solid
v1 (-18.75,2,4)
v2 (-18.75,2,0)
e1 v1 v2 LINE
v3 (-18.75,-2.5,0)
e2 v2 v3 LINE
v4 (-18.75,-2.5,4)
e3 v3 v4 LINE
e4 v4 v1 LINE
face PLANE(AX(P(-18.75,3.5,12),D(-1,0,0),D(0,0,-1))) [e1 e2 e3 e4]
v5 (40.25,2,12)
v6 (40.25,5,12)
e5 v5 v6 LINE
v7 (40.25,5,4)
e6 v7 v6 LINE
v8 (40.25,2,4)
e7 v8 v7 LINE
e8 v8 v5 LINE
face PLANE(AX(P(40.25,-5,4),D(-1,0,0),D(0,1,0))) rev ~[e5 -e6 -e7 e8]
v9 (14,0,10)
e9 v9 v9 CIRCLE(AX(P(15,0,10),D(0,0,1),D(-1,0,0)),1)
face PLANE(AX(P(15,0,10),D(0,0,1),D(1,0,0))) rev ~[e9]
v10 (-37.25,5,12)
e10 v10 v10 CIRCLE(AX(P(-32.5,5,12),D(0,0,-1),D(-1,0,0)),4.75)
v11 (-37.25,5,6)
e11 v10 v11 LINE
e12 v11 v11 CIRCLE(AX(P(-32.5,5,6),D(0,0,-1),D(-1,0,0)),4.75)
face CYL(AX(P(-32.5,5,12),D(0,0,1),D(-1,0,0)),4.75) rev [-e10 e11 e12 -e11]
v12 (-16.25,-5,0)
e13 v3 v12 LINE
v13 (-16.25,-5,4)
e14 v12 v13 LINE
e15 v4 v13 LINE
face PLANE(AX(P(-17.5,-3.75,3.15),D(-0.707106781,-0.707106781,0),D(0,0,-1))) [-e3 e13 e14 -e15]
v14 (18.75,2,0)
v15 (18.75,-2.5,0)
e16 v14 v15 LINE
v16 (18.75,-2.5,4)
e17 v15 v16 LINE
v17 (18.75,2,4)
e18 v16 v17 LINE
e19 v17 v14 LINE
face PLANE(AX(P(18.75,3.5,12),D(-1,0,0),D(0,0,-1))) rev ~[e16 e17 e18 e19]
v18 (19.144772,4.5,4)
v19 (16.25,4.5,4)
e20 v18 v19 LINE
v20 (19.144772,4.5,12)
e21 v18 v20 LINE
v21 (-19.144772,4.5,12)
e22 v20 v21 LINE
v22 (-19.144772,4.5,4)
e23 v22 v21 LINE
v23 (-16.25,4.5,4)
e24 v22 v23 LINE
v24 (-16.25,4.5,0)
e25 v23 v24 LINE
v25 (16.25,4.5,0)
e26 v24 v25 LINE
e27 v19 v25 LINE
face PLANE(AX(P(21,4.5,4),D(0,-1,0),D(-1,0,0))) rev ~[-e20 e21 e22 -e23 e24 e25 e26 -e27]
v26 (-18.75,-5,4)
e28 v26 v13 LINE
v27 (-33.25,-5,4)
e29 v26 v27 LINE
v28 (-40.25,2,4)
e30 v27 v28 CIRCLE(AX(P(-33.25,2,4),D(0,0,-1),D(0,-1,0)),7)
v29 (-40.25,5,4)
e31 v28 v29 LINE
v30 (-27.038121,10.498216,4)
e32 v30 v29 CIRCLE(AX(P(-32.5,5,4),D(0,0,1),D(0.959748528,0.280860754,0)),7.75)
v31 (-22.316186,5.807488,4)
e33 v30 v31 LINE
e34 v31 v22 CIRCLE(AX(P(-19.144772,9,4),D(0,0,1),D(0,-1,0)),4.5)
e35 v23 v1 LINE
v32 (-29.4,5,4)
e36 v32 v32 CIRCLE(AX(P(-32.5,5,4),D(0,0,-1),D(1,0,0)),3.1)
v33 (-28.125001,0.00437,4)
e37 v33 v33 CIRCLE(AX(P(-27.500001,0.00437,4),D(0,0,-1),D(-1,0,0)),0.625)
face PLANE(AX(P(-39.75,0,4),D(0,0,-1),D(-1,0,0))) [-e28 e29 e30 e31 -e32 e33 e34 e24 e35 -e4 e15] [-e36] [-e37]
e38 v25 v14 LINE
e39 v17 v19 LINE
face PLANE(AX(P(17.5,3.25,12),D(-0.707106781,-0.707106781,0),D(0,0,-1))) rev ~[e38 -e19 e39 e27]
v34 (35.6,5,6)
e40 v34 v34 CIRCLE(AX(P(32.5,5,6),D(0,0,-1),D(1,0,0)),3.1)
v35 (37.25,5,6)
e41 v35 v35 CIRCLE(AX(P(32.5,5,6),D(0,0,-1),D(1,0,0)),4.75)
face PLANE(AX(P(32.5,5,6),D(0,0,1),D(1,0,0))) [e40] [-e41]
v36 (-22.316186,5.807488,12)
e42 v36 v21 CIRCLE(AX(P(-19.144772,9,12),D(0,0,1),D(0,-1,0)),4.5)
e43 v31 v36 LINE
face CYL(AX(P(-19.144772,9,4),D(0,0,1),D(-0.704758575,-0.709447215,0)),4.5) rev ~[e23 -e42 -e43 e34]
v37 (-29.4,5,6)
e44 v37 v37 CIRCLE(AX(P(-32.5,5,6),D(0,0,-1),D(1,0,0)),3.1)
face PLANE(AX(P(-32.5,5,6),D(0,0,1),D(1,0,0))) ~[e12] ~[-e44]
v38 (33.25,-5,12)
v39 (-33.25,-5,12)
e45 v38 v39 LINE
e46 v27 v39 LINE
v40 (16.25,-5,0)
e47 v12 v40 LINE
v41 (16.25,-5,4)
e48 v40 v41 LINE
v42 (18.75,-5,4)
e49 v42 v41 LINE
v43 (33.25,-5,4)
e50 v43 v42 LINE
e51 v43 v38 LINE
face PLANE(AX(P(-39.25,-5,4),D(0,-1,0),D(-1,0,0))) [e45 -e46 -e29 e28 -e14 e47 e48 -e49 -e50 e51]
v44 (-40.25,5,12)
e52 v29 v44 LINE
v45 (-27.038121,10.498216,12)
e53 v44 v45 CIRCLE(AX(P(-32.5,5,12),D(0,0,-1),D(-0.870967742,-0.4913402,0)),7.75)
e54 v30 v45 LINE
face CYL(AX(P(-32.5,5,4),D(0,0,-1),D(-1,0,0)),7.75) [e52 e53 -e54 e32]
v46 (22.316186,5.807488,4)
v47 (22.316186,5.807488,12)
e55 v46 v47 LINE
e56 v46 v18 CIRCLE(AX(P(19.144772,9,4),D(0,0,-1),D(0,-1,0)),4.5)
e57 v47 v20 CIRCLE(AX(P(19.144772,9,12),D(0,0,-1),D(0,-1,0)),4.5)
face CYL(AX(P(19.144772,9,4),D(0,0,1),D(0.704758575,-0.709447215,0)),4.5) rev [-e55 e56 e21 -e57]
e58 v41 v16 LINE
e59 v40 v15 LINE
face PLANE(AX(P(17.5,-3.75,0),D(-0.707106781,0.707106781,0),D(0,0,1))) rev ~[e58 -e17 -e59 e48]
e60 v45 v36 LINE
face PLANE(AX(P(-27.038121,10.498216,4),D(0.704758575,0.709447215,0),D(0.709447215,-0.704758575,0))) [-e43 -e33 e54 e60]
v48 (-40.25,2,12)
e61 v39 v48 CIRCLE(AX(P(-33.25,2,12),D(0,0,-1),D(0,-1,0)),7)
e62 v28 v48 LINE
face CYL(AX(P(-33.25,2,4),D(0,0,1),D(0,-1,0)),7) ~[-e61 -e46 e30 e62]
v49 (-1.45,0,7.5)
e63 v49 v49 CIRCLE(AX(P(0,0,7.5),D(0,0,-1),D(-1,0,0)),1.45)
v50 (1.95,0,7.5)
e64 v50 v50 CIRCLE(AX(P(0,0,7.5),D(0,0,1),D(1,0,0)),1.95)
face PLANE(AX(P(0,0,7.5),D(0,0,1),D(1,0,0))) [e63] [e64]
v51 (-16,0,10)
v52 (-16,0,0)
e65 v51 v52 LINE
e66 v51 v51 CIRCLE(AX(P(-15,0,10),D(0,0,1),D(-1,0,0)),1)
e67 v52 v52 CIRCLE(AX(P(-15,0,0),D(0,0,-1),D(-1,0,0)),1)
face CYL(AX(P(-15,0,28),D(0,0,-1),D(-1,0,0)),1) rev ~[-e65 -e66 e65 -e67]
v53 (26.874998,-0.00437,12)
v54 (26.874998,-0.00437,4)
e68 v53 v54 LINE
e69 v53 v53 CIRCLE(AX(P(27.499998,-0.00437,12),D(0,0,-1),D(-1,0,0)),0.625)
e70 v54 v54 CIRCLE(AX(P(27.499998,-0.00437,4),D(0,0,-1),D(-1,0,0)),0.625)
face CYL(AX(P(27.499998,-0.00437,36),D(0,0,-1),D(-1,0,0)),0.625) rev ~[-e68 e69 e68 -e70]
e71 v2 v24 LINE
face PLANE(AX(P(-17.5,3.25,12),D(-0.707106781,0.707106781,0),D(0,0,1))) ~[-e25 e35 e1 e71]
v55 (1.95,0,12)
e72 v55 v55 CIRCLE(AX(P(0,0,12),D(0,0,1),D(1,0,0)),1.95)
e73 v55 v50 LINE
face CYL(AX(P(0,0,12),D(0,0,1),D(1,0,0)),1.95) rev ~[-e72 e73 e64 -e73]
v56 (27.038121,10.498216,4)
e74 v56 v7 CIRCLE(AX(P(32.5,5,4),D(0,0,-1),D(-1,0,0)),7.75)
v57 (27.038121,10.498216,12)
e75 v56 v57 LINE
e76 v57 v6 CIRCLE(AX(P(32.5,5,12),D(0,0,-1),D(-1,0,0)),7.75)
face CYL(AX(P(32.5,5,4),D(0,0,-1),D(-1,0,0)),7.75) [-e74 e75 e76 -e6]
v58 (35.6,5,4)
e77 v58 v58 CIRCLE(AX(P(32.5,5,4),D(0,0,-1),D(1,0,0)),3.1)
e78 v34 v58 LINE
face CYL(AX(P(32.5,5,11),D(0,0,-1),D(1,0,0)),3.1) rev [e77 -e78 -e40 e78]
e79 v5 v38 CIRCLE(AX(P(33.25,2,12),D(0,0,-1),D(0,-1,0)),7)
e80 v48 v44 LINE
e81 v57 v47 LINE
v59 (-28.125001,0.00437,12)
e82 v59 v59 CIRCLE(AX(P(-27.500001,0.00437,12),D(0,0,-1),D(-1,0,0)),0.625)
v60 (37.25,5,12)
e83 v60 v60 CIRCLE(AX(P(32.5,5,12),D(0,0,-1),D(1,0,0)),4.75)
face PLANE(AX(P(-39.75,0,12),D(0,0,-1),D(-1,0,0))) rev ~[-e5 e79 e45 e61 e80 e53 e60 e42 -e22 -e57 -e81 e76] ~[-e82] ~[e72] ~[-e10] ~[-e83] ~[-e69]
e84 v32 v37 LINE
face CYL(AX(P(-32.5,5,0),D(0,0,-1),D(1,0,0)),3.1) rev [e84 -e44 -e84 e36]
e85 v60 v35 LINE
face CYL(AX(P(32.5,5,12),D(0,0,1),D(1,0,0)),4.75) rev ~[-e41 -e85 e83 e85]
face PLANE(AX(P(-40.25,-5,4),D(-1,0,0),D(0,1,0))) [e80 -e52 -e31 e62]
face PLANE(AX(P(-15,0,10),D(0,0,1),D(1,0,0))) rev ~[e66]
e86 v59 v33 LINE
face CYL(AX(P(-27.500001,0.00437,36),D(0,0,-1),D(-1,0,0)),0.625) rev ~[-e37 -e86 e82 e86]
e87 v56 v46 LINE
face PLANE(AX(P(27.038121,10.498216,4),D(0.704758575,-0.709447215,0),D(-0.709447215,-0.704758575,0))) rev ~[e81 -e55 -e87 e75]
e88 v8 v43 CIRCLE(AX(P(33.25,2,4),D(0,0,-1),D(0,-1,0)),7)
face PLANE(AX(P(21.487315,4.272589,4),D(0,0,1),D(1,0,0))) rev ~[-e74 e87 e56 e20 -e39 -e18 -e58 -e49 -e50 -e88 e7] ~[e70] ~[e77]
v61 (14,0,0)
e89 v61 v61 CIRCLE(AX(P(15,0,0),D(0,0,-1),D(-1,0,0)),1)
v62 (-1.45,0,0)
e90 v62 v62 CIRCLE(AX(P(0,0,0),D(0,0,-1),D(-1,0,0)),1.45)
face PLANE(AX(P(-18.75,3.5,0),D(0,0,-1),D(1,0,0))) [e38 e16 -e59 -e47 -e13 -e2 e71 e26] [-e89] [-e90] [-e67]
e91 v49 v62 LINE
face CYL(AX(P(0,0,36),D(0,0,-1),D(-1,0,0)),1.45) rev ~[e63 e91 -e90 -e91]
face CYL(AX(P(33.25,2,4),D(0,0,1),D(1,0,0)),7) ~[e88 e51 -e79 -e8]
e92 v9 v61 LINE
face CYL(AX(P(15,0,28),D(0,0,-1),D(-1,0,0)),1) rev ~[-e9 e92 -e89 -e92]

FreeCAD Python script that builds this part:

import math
import FreeCAD as App
import Part
import Sketcher
Q = App.Units.Quantity


def edges_at(feature, points):
    """Names of the edges that pass closest to the given points."""
    edges = feature.Shape.Edges
    near = lambda p: min(range(len(edges)), key=lambda i: edges[i].distToShape(Part.Vertex(*p))[0])
    return sorted({f"Edge{near(p) + 1}" for p in points})


def add_polygon(sketch, points):
    """Adds a closed chain of lines whose ends are joined by coincident constraints."""
    first, n = sketch.GeometryCount, len(points)
    for a, b in zip(points, points[1:] + points[:1]):
        sketch.addGeometry(Part.LineSegment(App.Vector(*a, 0), App.Vector(*b, 0)), False)
    for i in range(n):
        sketch.addConstraint(Sketcher.Constraint("Coincident", first + i, 2, first + (i + 1) % n, 1))

doc = App.newDocument("Part")
body = doc.addObject("PartDesign::Body", "Body")

# Sketch on XY plane
sketch1 = body.newObject("Sketcher::SketchObject", "Sketch")
sketch1.AttachmentSupport = (doc.getObject("XY_Plane"), [""])
sketch1.MapMode = "FlatFace"
add_polygon(sketch1, [(-39, 4), (-39, -4), (39, -4), (39, 4)])  # lines 0-3
sketch1.addConstraint([
    Sketcher.Constraint("Vertical", 0),
    Sketcher.Constraint("Horizontal", 1),
    Sketcher.Constraint("Vertical", 2),
    Sketcher.Constraint("Horizontal", 3),
    Sketcher.Constraint("Symmetric", 0, 2, 2, 2, -1, 1),
    Sketcher.Constraint("DistanceY", 0, 2, 0, 1, 7.0),
    Sketcher.Constraint("DistanceX", 1, 1, 1, 2, 78.5),
])
pad1 = body.newObject("PartDesign::Pad", "Pad")
pad1.Profile = sketch1
pad1.Type = "TwoLengths"
pad1.Length = 12
pad1.Length2 = 12

# Sketch on XZ plane
sketch2 = body.newObject("Sketcher::SketchObject", "Sketch001")
sketch2.AttachmentSupport = (doc.getObject("XZ_Plane"), [""])
sketch2.MapMode = "FlatFace"
sketch2.AttachmentOffset = App.Placement(App.Vector(0, 0, -3.5), App.Rotation())
add_polygon(sketch2, [(-39, -3), (-39, 3), (-19, 3), (-19, -3)])  # lines 0-3
add_polygon(sketch2, [(19, -3), (19, 3), (39, 3), (39, -3)])  # lines 4-7
sketch2.addConstraint([
    Sketcher.Constraint("Vertical", 0),
    Sketcher.Constraint("Horizontal", 1),
    Sketcher.Constraint("Vertical", 2),
    Sketcher.Constraint("Horizontal", 3),
    Sketcher.Constraint("Vertical", 4),
    Sketcher.Constraint("Horizontal", 5),
    Sketcher.Constraint("Vertical", 6),
    Sketcher.Constraint("Horizontal", 7),
    Sketcher.Constraint("Symmetric", 2, 2, 4, 2, -1, 1),
    Sketcher.Constraint("Symmetric", 0, 2, 6, 2, -1, 1),
    Sketcher.Constraint("Horizontal", 1, 2, 4, 2),
    Sketcher.Constraint("DistanceX", 1, 1, 1, 2, 20.5),
    Sketcher.Constraint("DistanceY", 0, 1, 0, 2, 6.3),
    Sketcher.Constraint("DistanceX", 0, 2, 4, 2, 58.0),
])
pocket1 = body.newObject("PartDesign::Pocket", "Pocket")
pocket1.Profile = sketch2
pocket1.Type = "ThroughAll"
pocket1.Reversed = True

# Sketch on XZ plane
sketch3 = body.newObject("Sketcher::SketchObject", "Sketch002")
sketch3.AttachmentSupport = (doc.getObject("XZ_Plane"), [""])
sketch3.MapMode = "FlatFace"
sketch3.AttachmentOffset = App.Placement(App.Vector(0, 0, -3.5), App.Rotation())
add_polygon(sketch3, [(-39, -12), (-39, -3), (-26, -3), (-26, -12)])  # lines 0-3
add_polygon(sketch3, [(-39, 3), (-39, 12), (-26, 12), (-26, 3)])  # lines 4-7
add_polygon(sketch3, [(26, 3), (26, 12), (39, 12), (39, 3)])  # lines 8-11
add_polygon(sketch3, [(26, -12), (26, -3), (39, -3), (39, -12)])  # lines 12-15
sketch3.addConstraint([
    Sketcher.Constraint("Vertical", 0),
    Sketcher.Constraint("Horizontal", 1),
    Sketcher.Constraint("Vertical", 2),
    Sketcher.Constraint("Horizontal", 3),
    Sketcher.Constraint("Vertical", 4),
    Sketcher.Constraint("Horizontal", 5),
    Sketcher.Constraint("Vertical", 6),
    Sketcher.Constraint("Horizontal", 7),
    Sketcher.Constraint("Vertical", 8),
    Sketcher.Constraint("Horizontal", 9),
    Sketcher.Constraint("Vertical", 10),
    Sketcher.Constraint("Horizontal", 11),
    Sketcher.Constraint("Vertical", 12),
    Sketcher.Constraint("Horizontal", 13),
    Sketcher.Constraint("Vertical", 14),
    Sketcher.Constraint("Horizontal", 15),
    Sketcher.Constraint("Symmetric", 2, 2, 8, 2, -1, 1),
    Sketcher.Constraint("Symmetric", 0, 2, 10, 2, -1, 1),
    Sketcher.Constraint("Symmetric", 6, 2, 12, 2, -1, 1),
    Sketcher.Constraint("Symmetric", 4, 2, 14, 2, -1, 1),
    Sketcher.Constraint("Symmetric", 5, 2, 8, 2, -2),
    Sketcher.Constraint("Symmetric", 7, 2, 10, 2, -2),
    Sketcher.Constraint("DistanceX", 1, 1, 1, 2, 13.5),
    Sketcher.Constraint("DistanceY", 2, 2, -1, 1, 12.0),
    Sketcher.Constraint("DistanceX", 4, 2, 8, 2, 65.0),
    Sketcher.Constraint("DistanceY", 0, 1, 0, 2, 8.85),
])
pad2 = body.newObject("PartDesign::Pad", "Pad001")
pad2.Profile = sketch3
pad2.Length = 8
pad2.Reversed = True

# Sketch on XY plane
sketch4 = body.newObject("Sketcher::SketchObject", "Sketch003")
sketch4.AttachmentSupport = (doc.getObject("XY_Plane"), [""])
sketch4.MapMode = "FlatFace"
sketch4.addGeometry([
    Part.Circle(App.Vector(-32.5, 5, 0), App.Vector(0, 0, 1), 3.1),
    Part.Circle(App.Vector(32.5, 5, 0), App.Vector(0, 0, 1), 3.1),
], False)
sketch4.addConstraint([
    Sketcher.Constraint("Equal", 0, 1),
    Sketcher.Constraint("Symmetric", 0, 3, 1, 3, -2),
    Sketcher.Constraint("Diameter", 0, 6.2),
    Sketcher.Constraint("DistanceY", -1, 1, 0, 3, 5.0),
    Sketcher.Constraint("DistanceX", 0, 3, 1, 3, 65.0),
])
pocket2 = body.newObject("PartDesign::Pocket", "Pocket001")
pocket2.Profile = sketch4
pocket2.Type = "ThroughAll"
pocket2.Midplane = True

# Sketch on XY plane
sketch5 = body.newObject("Sketcher::SketchObject", "Sketch004")
sketch5.AttachmentSupport = (doc.getObject("XY_Plane"), [""])
sketch5.MapMode = "FlatFace"
add_polygon(sketch5, [(15, 4), (36, -2), (36, 12), (15, 12)])  # lines 0-3
sketch5.addConstraint([
    Sketcher.Constraint("Vertical", 1),
    Sketcher.Constraint("Horizontal", 2),
    Sketcher.Constraint("Vertical", 3),
    Sketcher.Constraint("DistanceY", 3, 2, 3, 1, 8.0),
    Sketcher.Constraint("Angle", 0, Q("-15 deg")),
    Sketcher.Constraint("DistanceX", -1, 1, 2, 2, 15.0),
    Sketcher.Constraint("DistanceY", -1, 1, 1, 2, 11.5),
    Sketcher.Constraint("DistanceX", 2, 2, 2, 1, 21.256888),
])
pocket3 = body.newObject("PartDesign::Pocket", "Pocket002")
pocket3.Profile = sketch5
pocket3.Length = 5

# Sketch on XY plane
sketch6 = body.newObject("Sketcher::SketchObject", "Sketch005")
sketch6.AttachmentSupport = (doc.getObject("XY_Plane"), [""])
sketch6.MapMode = "FlatFace"
sketch6.AttachmentOffset = App.Placement(App.Vector(0, 0, 12), App.Rotation())
sketch6.addGeometry(Part.Circle(App.Vector(32, 5, 0), App.Vector(0, 0, 1), 6), False)
sketch6.addConstraint([
    Sketcher.Constraint("Diameter", 0, 12.4),
    Sketcher.Constraint("DistanceY", -1, 1, 0, 3, 5.0),
    Sketcher.Constraint("DistanceX", -1, 1, 0, 3, 32.5),
])
pocket4 = body.newObject("PartDesign::Pocket", "Pocket003")
pocket4.Profile = sketch6
pocket4.Length = 1
doc.recompute()

mirrored = body.newObject("PartDesign::Mirrored", "Mirrored")
mirrored.Originals = [pocket4]
mirrored.MirrorPlane = (doc.getObject("XY_Plane"), [""])
body.Tip = mirrored
doc.recompute()

mirrored2 = body.newObject("PartDesign::Mirrored", "Mirrored001")
mirrored2.Originals = [pocket4]
mirrored2.MirrorPlane = (doc.getObject("YZ_Plane"), [""])
body.Tip = mirrored2

# Sketch on XY plane
sketch7 = body.newObject("Sketcher::SketchObject", "Sketch006")
sketch7.AttachmentSupport = (doc.getObject("XY_Plane"), [""])
sketch7.MapMode = "FlatFace"
sketch7.AttachmentOffset = App.Placement(App.Vector(0, 0, -12), App.Rotation())
sketch7.addGeometry(Part.Circle(App.Vector(-32, 5, 0), App.Vector(0, 0, 1), 6), False)
sketch7.addConstraint([
    Sketcher.Constraint("Diameter", 0, 12.4),
    Sketcher.Constraint("DistanceY", -1, 1, 0, 3, 5.0),
    Sketcher.Constraint("DistanceX", 0, 3, -1, 1, 32.5),
])
pocket5 = body.newObject("PartDesign::Pocket", "Pocket004")
pocket5.Profile = sketch7
pocket5.Length = 1
pocket5.Reversed = True

# Sketch on XY plane
sketch8 = body.newObject("Sketcher::SketchObject", "Sketch007")
sketch8.AttachmentSupport = (doc.getObject("XY_Plane"), [""])
sketch8.MapMode = "FlatFace"
sketch8.AttachmentOffset = App.Placement(App.Vector(0, 0, 12), App.Rotation())
add_polygon(sketch8, [(-39, 12), (-39, 3), (-26, 3), (-26, 12)])  # lines 0-3
sketch8.addConstraint([
    Sketcher.Constraint("Vertical", 0),
    Sketcher.Constraint("Horizontal", 1),
    Sketcher.Constraint("Vertical", 2),
    Sketcher.Constraint("Horizontal", 3),
    Sketcher.Constraint("DistanceX", 1, 1, 1, 2, 13.5),
    Sketcher.Constraint("DistanceY", 0, 2, 0, 1, 8.5),
    Sketcher.Constraint("DistanceY", -1, 1, 0, 2, 3.0),
    Sketcher.Constraint("DistanceX", 0, 2, -1, 1, 39.25),
])
pocket6 = body.newObject("PartDesign::Pocket", "Pocket005")
pocket6.Profile = sketch8
pocket6.Length = 1
doc.recompute()

mirrored3 = body.newObject("PartDesign::Mirrored", "Mirrored002")
mirrored3.Originals = [pocket6]
mirrored3.MirrorPlane = (doc.getObject("YZ_Plane"), [""])
body.Tip = mirrored3
doc.recompute()

mirrored4 = body.newObject("PartDesign::Mirrored", "Mirrored003")
mirrored4.Originals = [pocket6]
mirrored4.MirrorPlane = (doc.getObject("XY_Plane"), [""])
body.Tip = mirrored4

# Sketch on XY plane
sketch9 = body.newObject("Sketcher::SketchObject", "Sketch008")
sketch9.AttachmentSupport = (doc.getObject("XY_Plane"), [""])
sketch9.MapMode = "FlatFace"
sketch9.AttachmentOffset = App.Placement(App.Vector(0, 0, -12), App.Rotation())
add_polygon(sketch9, [(39, 12), (39, 3), (26, 3), (26, 12)])  # lines 0-3
sketch9.addConstraint([
    Sketcher.Constraint("Vertical", 0),
    Sketcher.Constraint("Horizontal", 1),
    Sketcher.Constraint("Vertical", 2),
    Sketcher.Constraint("Horizontal", 3),
    Sketcher.Constraint("DistanceX", 1, 2, 1, 1, 13.5),
    Sketcher.Constraint("DistanceY", 0, 2, 0, 1, 8.5),
    Sketcher.Constraint("DistanceY", -1, 1, 0, 2, 3.0),
    Sketcher.Constraint("DistanceX", -1, 1, 0, 2, 39.25),
])
pocket7 = body.newObject("PartDesign::Pocket", "Pocket006")
pocket7.Profile = sketch9
pocket7.Length = 1
pocket7.Reversed = True

# Sketch on XY plane
sketch10 = body.newObject("Sketcher::SketchObject", "Sketch009")
sketch10.AttachmentSupport = (doc.getObject("XY_Plane"), [""])
sketch10.MapMode = "FlatFace"
sketch10.AttachmentOffset = App.Placement(App.Vector(0, 0, 12), App.Rotation())
sketch10.addGeometry([
    Part.Circle(App.Vector(-25, 0, 0), App.Vector(0, 0, 1), 0.8),
    Part.Circle(App.Vector(0, 0, 0), App.Vector(0, 0, 1), 0.8),
    Part.Circle(App.Vector(25, 0, 0), App.Vector(0, 0, 1), 0.8),
], False)
sketch10.addConstraint([
    Sketcher.Constraint("Coincident", 1, 3, -1, 1),
    Sketcher.Constraint("Equal", 0, 1),
    Sketcher.Constraint("Equal", 1, 2),
    Sketcher.Constraint("Symmetric", 0, 3, 2, 3, -1, 1),
    Sketcher.Constraint("PointOnObject", 0, 3, -1),
    Sketcher.Constraint("Diameter", 0, 1.6),
    Sketcher.Constraint("DistanceX", 0, 3, -1, 1, 25.0),
])
doc.recompute()
hole = body.newObject("PartDesign::Hole", "Hole")
hole.Profile = sketch10
hole.ThreadType = "None"
hole.Diameter = 1.6
hole.DepthType = "ThroughAll"

# Sketch on XY plane
sketch11 = body.newObject("Sketcher::SketchObject", "Sketch010")
sketch11.AttachmentSupport = (doc.getObject("XY_Plane"), [""])
sketch11.MapMode = "FlatFace"
sketch11.AttachmentOffset = App.Placement(App.Vector(0, 0, 12), App.Rotation())
sketch11.addGeometry([
    Part.LineSegment(App.Vector(-39, 21, 0), App.Vector(-39, 5, 0)),
    Part.ArcOfCircle(Part.Circle(App.Vector(-32, 5, 0), App.Vector(0, 0, 1), 7), math.radians(0), math.radians(180)),
    Part.LineSegment(App.Vector(-26, 5, 0), App.Vector(-26, 21, 0)),
    Part.LineSegment(App.Vector(-26, 21, 0), App.Vector(-39, 21, 0)),
], False)
sketch11.addConstraint([
    Sketcher.Constraint("Tangent", 0, 2, 1, 2),
    Sketcher.Constraint("Tangent", 1, 1, 2, 1),
    Sketcher.Constraint("Coincident", 2, 2, 3, 1),
    Sketcher.Constraint("Coincident", 3, 2, 0, 1),
    Sketcher.Constraint("Vertical", 0),
    Sketcher.Constraint("Vertical", 2),
    Sketcher.Constraint("Horizontal", 3),
    Sketcher.Constraint("Radius", 1, 6.75),
    Sketcher.Constraint("DistanceY", -1, 1, 1, 3, 5.0),
    Sketcher.Constraint("DistanceX", 1, 3, -1, 1, 32.5),
    Sketcher.Constraint("DistanceY", 0, 2, 0, 1, 16.221242),
])
pocket8 = body.newObject("PartDesign::Pocket", "Pocket007")
pocket8.Profile = sketch11
pocket8.Length = 27

# Sketch on XY plane
sketch12 = body.newObject("Sketcher::SketchObject", "Sketch011")
sketch12.AttachmentSupport = (doc.getObject("XY_Plane"), [""])
sketch12.MapMode = "FlatFace"
add_polygon(sketch12, [(-46, 22), (-46, -22), (46, -22), (46, 22)])  # lines 0-3
sketch12.addConstraint([
    Sketcher.Constraint("Vertical", 0),
    Sketcher.Constraint("Horizontal", 1),
    Sketcher.Constraint("Vertical", 2),
    Sketcher.Constraint("Horizontal", 3),
    Sketcher.Constraint("Symmetric", 0, 2, 2, 2, -1, 1),
    Sketcher.Constraint("DistanceX", 1, 1, 1, 2, 91.032242),
    Sketcher.Constraint("DistanceY", 0, 2, 0, 1, 44.337341),
])
pocket9 = body.newObject("PartDesign::Pocket", "Pocket008")
pocket9.Profile = sketch12
pocket9.Length = 22

# Sketch on XY plane
sketch13 = body.newObject("Sketcher::SketchObject", "Sketch012")
sketch13.AttachmentSupport = (doc.getObject("XY_Plane"), [""])
sketch13.MapMode = "FlatFace"
sketch13.AttachmentOffset = App.Placement(App.Vector(0, 0, 12), App.Rotation())
sketch13.addGeometry(Part.Circle(App.Vector(-15, 0, 0), App.Vector(0, 0, 1), 1), False)
sketch13.addConstraint([
    Sketcher.Constraint("PointOnObject", 0, 3, -1),
    Sketcher.Constraint("Diameter", 0, 2.0),
    Sketcher.Constraint("DistanceX", 0, 3, -1, 1, 15.0),
])
doc.recompute()
hole2 = body.newObject("PartDesign::Hole", "Hole001")
hole2.Profile = sketch13
hole2.ThreadType = "None"
hole2.Diameter = 2
hole2.DepthType = "Dimension"
hole2.Depth = 16
hole2.DrillPoint = "Angled"
hole2.DrillPointAngle = 118

# Sketch on XY plane
sketch14 = body.newObject("Sketcher::SketchObject", "Sketch013")
sketch14.AttachmentSupport = (doc.getObject("XY_Plane"), [""])
sketch14.MapMode = "FlatFace"
sketch14.AttachmentOffset = App.Placement(App.Vector(0, 0, 12), App.Rotation())
sketch14.addGeometry(Part.Circle(App.Vector(15, 0, 0), App.Vector(0, 0, 1), 1), False)
sketch14.addConstraint([
    Sketcher.Constraint("PointOnObject", 0, 3, -1),
    Sketcher.Constraint("Diameter", 0, 2.0),
    Sketcher.Constraint("DistanceX", -1, 1, 0, 3, 15.0),
])
doc.recompute()
hole3 = body.newObject("PartDesign::Hole", "Hole002")
hole3.Profile = sketch14
hole3.ThreadType = "None"
hole3.Diameter = 2
hole3.DepthType = "Dimension"
hole3.Depth = 16
hole3.DrillPoint = "Angled"
hole3.DrillPointAngle = 118

# Sketch on XY plane
sketch15 = body.newObject("Sketcher::SketchObject", "Sketch014")
sketch15.AttachmentSupport = (doc.getObject("XY_Plane"), [""])
sketch15.MapMode = "FlatFace"
sketch15.AttachmentOffset = App.Placement(App.Vector(0, 0, 11), App.Rotation())
sketch15.addGeometry([
    Part.LineSegment(App.Vector(25.8, 3, 0), App.Vector(26.6, 3, 0)),  # 0
    Part.ArcOfCircle(Part.Circle(App.Vector(32.5, 5, 0), App.Vector(0, 0, 1), 6.2), math.radians(-161), math.radians(-19)),  # 1
    Part.LineSegment(App.Vector(38.4, 3, 0), App.Vector(39.2, 3, 0)),  # 2
    Part.LineSegment(App.Vector(39.2, 3, 0), App.Vector(39.2, 11.5, 0)),  # 3
    Part.LineSegment(App.Vector(39.2, 11.5, 0), App.Vector(25.8, 11.5, 0)),  # 4
    Part.LineSegment(App.Vector(25.8, 11.5, 0), App.Vector(25.8, 3, 0)),  # 5
    Part.Circle(App.Vector(32.5, 5, 0), App.Vector(0, 0, 1), 3.1),  # 6
], False)
sketch15.addConstraint([
    Sketcher.Constraint("Coincident", 0, 2, 1, 1),
    Sketcher.Constraint("Coincident", 1, 2, 2, 1),
    Sketcher.Constraint("Coincident", 2, 2, 3, 1),
    Sketcher.Constraint("Coincident", 3, 2, 4, 1),
    Sketcher.Constraint("Coincident", 4, 2, 5, 1),
    Sketcher.Constraint("Coincident", 5, 2, 0, 1),
    Sketcher.Constraint("Horizontal", 0),
    Sketcher.Constraint("Horizontal", 2),
    Sketcher.Constraint("Vertical", 3),
    Sketcher.Constraint("Horizontal", 4),
    Sketcher.Constraint("Vertical", 5),
    Sketcher.Constraint("Coincident", 6, 3, 1, 3),
    Sketcher.Constraint("Horizontal", 0, 2, 1, 2),
    Sketcher.Constraint("Equal", 0, 2),
    Sketcher.Constraint("Diameter", 6, 6.2),
    Sketcher.Constraint("Radius", 1, 6.2),
    Sketcher.Constraint("DistanceX", 4, 2, 4, 1, 13.5),
    Sketcher.Constraint("DistanceY", 3, 1, 3, 2, 8.5),
    Sketcher.Constraint("DistanceY", -1, 1, 1, 3, 5.0),
    Sketcher.Constraint("DistanceY", -1, 1, 0, 2, 3.0),
    Sketcher.Constraint("DistanceX", -1, 1, 1, 3, 32.5),
])
pad3 = body.newObject("PartDesign::Pad", "Pad002")
pad3.Profile = sketch15
pad3.Length = 1

# Sketch on XY plane
sketch16 = body.newObject("Sketcher::SketchObject", "Sketch015")
sketch16.AttachmentSupport = (doc.getObject("XY_Plane"), [""])
sketch16.MapMode = "FlatFace"
sketch16.AttachmentOffset = App.Placement(App.Vector(0, 0, 12), App.Rotation())
sketch16.addGeometry(Part.Circle(App.Vector(32.5, 5, 0), App.Vector(0, 0, 1), 4.8), False)
sketch16.addConstraint([
    Sketcher.Constraint("Diameter", 0, 9.5),
    Sketcher.Constraint("DistanceY", -1, 1, 0, 3, 5.0),
    Sketcher.Constraint("DistanceX", -1, 1, 0, 3, 32.5),
])
pocket10 = body.newObject("PartDesign::Pocket", "Pocket009")
pocket10.Profile = sketch16
pocket10.Length = 6
doc.recompute()

mirrored5 = body.newObject("PartDesign::Mirrored", "Mirrored004")
mirrored5.Originals = [pad3, pocket10]
mirrored5.MirrorPlane = (doc.getObject("YZ_Plane"), [""])
body.Tip = mirrored5

# Sketch on XY plane
sketch17 = body.newObject("Sketcher::SketchObject", "Sketch016")
sketch17.AttachmentSupport = (doc.getObject("XY_Plane"), [""])
sketch17.MapMode = "FlatFace"
sketch17.AttachmentOffset = App.Placement(App.Vector(0, 0, 12), App.Rotation())
sketch17.addGeometry([
    Part.Circle(App.Vector(-25, 0, 0), App.Vector(0, 0, 1), 0.8),
    Part.Circle(App.Vector(25, 0, 0), App.Vector(0, 0, 1), 0.8),
], False)
sketch17.addConstraint([
    Sketcher.Constraint("Equal", 0, 1),
    Sketcher.Constraint("Symmetric", 0, 3, 1, 3, -1, 1),
    Sketcher.Constraint("PointOnObject", 0, 3, -1),
    Sketcher.Constraint("Diameter", 0, 1.6),
    Sketcher.Constraint("DistanceX", 0, 3, -1, 1, 25.0),
])
pad4 = body.newObject("PartDesign::Pad", "Pad003")
pad4.Profile = sketch17
pad4.Length = 8.85
pad4.Reversed = True

# Sketch on XZ plane
sketch18 = body.newObject("Sketcher::SketchObject", "Sketch017")
sketch18.AttachmentSupport = (doc.getObject("XZ_Plane"), [""])
sketch18.MapMode = "FlatFace"
sketch18.AttachmentOffset = App.Placement(App.Vector(0, 0, 3.5), App.Rotation())
add_polygon(sketch18, [(-18.8, 0), (18.8, 0), (18.8, 3.1), (39.2, 3.1), (39.2, 12), (-39.2, 12), (-39.2, 3.1), (-18.8, 3.1)])  # lines 0-7
sketch18.addConstraint([
    Sketcher.Constraint("Horizontal", 0),
    Sketcher.Constraint("Vertical", 1),
    Sketcher.Constraint("Horizontal", 2),
    Sketcher.Constraint("Vertical", 3),
    Sketcher.Constraint("Horizontal", 4),
    Sketcher.Constraint("Vertical", 5),
    Sketcher.Constraint("Horizontal", 6),
    Sketcher.Constraint("Vertical", 7),
    Sketcher.Constraint("Symmetric", 0, 2, 7, 2, -1, 1),
    Sketcher.Constraint("Symmetric", 2, 2, 5, 2, -2),
    Sketcher.Constraint("DistanceX", 0, 1, 0, 2, 37.5),
    Sketcher.Constraint("DistanceX", 2, 1, 2, 2, 20.5),
    Sketcher.Constraint("DistanceY", -1, 1, 3, 2, 12.0),
    Sketcher.Constraint("DistanceY", 1, 1, 1, 2, 3.15),
])
pad5 = body.newObject("PartDesign::Pad", "Pad004")
pad5.Profile = sketch18
pad5.Length = 1.5

# Sketch on XY plane
sketch19 = body.newObject("Sketcher::SketchObject", "Sketch018")
sketch19.AttachmentSupport = (doc.getObject("XY_Plane"), [""])
sketch19.MapMode = "FlatFace"
sketch19.AttachmentOffset = App.Placement(App.Vector(0, 0, 3.15), App.Rotation())
add_polygon(sketch19, [(41, 15), (41, -5), (19, -5), (19, 15)])  # lines 0-3
add_polygon(sketch19, [(-19, 15), (-19, -5), (-41, -5), (-41, 15)])  # lines 4-7
sketch19.addConstraint([
    Sketcher.Constraint("Vertical", 0),
    Sketcher.Constraint("Horizontal", 1),
    Sketcher.Constraint("Vertical", 2),
    Sketcher.Constraint("Horizontal", 3),
    Sketcher.Constraint("Vertical", 4),
    Sketcher.Constraint("Horizontal", 5),
    Sketcher.Constraint("Vertical", 6),
    Sketcher.Constraint("Horizontal", 7),
    Sketcher.Constraint("Symmetric", 1, 2, 4, 2, -2),
    Sketcher.Constraint("Symmetric", 3, 2, 6, 2, -2),
    Sketcher.Constraint("DistanceY", 0, 2, -1, 1, 5.0),
    Sketcher.Constraint("DistanceX", 4, 2, 1, 2, 37.5),
    Sketcher.Constraint("DistanceX", 1, 2, 1, 1, 22.48338),
    Sketcher.Constraint("DistanceY", 0, 2, 0, 1, 20.071516),
])
pocket11 = body.newObject("PartDesign::Pocket", "Pocket010")
pocket11.Profile = sketch19
pocket11.Length = 0.85
pocket11.Reversed = True

# Sketch on XY plane
sketch20 = body.newObject("Sketcher::SketchObject", "Sketch019")
sketch20.AttachmentSupport = (doc.getObject("XY_Plane"), [""])
sketch20.MapMode = "FlatFace"
sketch20.AttachmentOffset = App.Placement(App.Vector(0, 0, 4), App.Rotation())
add_polygon(sketch20, [(-27.9, 9.9), (-21, 3.5), (-25.8, 3.5)])  # lines 0-2
add_polygon(sketch20, [(25.8, 3.5), (21, 3.5), (27.9, 9.9)])  # lines 3-5
sketch20.addConstraint([
    Sketcher.Constraint("Horizontal", 1),
    Sketcher.Constraint("Horizontal", 3),
    Sketcher.Constraint("Symmetric", 0, 2, 3, 2, -2),
    Sketcher.Constraint("Symmetric", 2, 2, 4, 2, -2),
    Sketcher.Constraint("Equal", 1, 3),
    Sketcher.Constraint("DistanceX", 0, 2, -1, 1, 21.0),
    Sketcher.Constraint("DistanceX", 1, 2, 1, 1, 4.75),
    Sketcher.Constraint("DistanceY", -1, 1, 0, 2, 3.5),
    Sketcher.Constraint("Distance", 0, 9.430668),
    Sketcher.Constraint("Distance", 2, 6.782571),
])
pad6 = body.newObject("PartDesign::Pad", "Pad005")
pad6.Profile = sketch20
pad6.Length = 8

# Sketch on XY plane
sketch21 = body.newObject("Sketcher::SketchObject", "Sketch020")
sketch21.AttachmentSupport = (doc.getObject("XY_Plane"), [""])
sketch21.MapMode = "FlatFace"
sketch21.AttachmentOffset = App.Placement(App.Vector(0, 0, 12), App.Rotation())
sketch21.addGeometry(Part.Circle(App.Vector(0, 0, 0), App.Vector(0, 0, 1), 1.4), False)
sketch21.addConstraint([
    Sketcher.Constraint("Coincident", 0, 3, -1, 1),
    Sketcher.Constraint("Diameter", 0, 2.9),
])
doc.recompute()
hole4 = body.newObject("PartDesign::Hole", "Hole003")
hole4.Profile = sketch21
hole4.ThreadType = "None"
hole4.Diameter = 2.9
hole4.DepthType = "Dimension"
hole4.Depth = 24
hole4.DrillPoint = "Angled"
hole4.DrillPointAngle = 118

# Sketch on XZ plane
sketch22 = body.newObject("Sketcher::SketchObject", "Sketch021")
sketch22.AttachmentSupport = (doc.getObject("XZ_Plane"), [""])
sketch22.MapMode = "FlatFace"
sketch22.AttachmentOffset = App.Placement(App.Vector(0, 0, -3.5), App.Rotation())
add_polygon(sketch22, [(-19, 0), (-19, 12), (19, 12), (19, 0)])  # lines 0-3
sketch22.addConstraint([
    Sketcher.Constraint("Vertical", 0),
    Sketcher.Constraint("Horizontal", 1),
    Sketcher.Constraint("Vertical", 2),
    Sketcher.Constraint("Horizontal", 3),
    Sketcher.Constraint("Symmetric", 2, 2, 3, 2, -1, 1),
    Sketcher.Constraint("DistanceY", 0, 1, 0, 2, 12.0),
    Sketcher.Constraint("DistanceX", 1, 1, 1, 2, 37.5),
])
pad7 = body.newObject("PartDesign::Pad", "Pad006")
pad7.Profile = sketch22
pad7.Length = 1
pad7.Reversed = True

# Sketch on XY plane
sketch23 = body.newObject("Sketcher::SketchObject", "Sketch022")
sketch23.AttachmentSupport = (doc.getObject("XY_Plane"), [""])
sketch23.MapMode = "FlatFace"
sketch23.AttachmentOffset = App.Placement(App.Vector(0, 0, 12), App.Rotation())
sketch23.addGeometry(Part.Circle(App.Vector(0, 0, 0), App.Vector(0, 0, 1), 1.9), False)
sketch23.addConstraint([
    Sketcher.Constraint("Coincident", 0, 3, -1, 1),
    Sketcher.Constraint("Diameter", 0, 3.9),
])
pocket12 = body.newObject("PartDesign::Pocket", "Pocket011")
pocket12.Profile = sketch23
pocket12.Length = 4.5
doc.recompute()

chamfer = body.newObject("PartDesign::Chamfer", "Chamfer")
chamfer.Base = (pocket12, edges_at(pocket12, [
    (18.75, 4.5, 6),
    (-18.75, 4.5, 6),
    (-18.75, -5, 1.575),
    (18.75, -5, 1.575),
]))
chamfer.Size = 2.5

# Sketch on XY plane
sketch24 = body.newObject("Sketcher::SketchObject", "Sketch023")
sketch24.AttachmentSupport = (doc.getObject("XY_Plane"), [""])
sketch24.MapMode = "FlatFace"
sketch24.AttachmentOffset = App.Placement(App.Vector(0, 0, 4), App.Rotation())
add_polygon(sketch24, [(-24.7, 7), (-32.5, 11.5), (-37.9, 9.1), (-39.2, 5), (-41.1, 5), (-41.1, 13.6), (-25.6, 20.5)])  # lines 0-6
add_polygon(sketch24, [(32.5, 11.5), (25.8, 7.9), (19.1, 11.8), (33, 17.9), (45, 11.8), (39.2, 7.7)])  # lines 7-12
sketch24.addConstraint([
    Sketcher.Constraint("Horizontal", 3),
    Sketcher.Constraint("Vertical", 4),
    Sketcher.Constraint("Symmetric", 0, 2, 12, 2, -2),
    Sketcher.Constraint("Parallel", 1, 5),
    Sketcher.Constraint("Horizontal", 8, 2, 10, 2),
    Sketcher.Constraint("DistanceY", -1, 1, 2, 2, 5.0),
    Sketcher.Constraint("DistanceX", 2, 2, 7, 2, 65.0),
    Sketcher.Constraint("DistanceX", 0, 2, -1, 1, 32.5),
    Sketcher.Constraint("DistanceY", -1, 1, 0, 2, 11.5),
    Sketcher.Constraint("DistanceX", 7, 2, 11, 2, 13.5),
    Sketcher.Constraint("DistanceX", 2, 2, -1, 1, 39.25),
    Sketcher.Constraint("DistanceX", 3, 2, 3, 1, 1.801219),
    Sketcher.Constraint("DistanceY", 4, 1, 4, 2, 8.570991),
    Sketcher.Constraint("DistanceY", -1, 1, 9, 2, 17.943702),
    Sketcher.Constraint("Distance", 0, 8.97914),
    Sketcher.Constraint("Distance", 2, 4.30358),
    Sketcher.Constraint("Distance", 5, 16.94668),
    Sketcher.Constraint("Distance", 8, 7.693811),
    Sketcher.Constraint("Distance", 9, 15.172029),
    Sketcher.Constraint("Distance", 12, 7.72282),
    Sketcher.Constraint("DistanceX", 1, 2, -1, 1, 37.878089),
    Sketcher.Constraint("DistanceX", 6, 2, -1, 1, 24.736961),
    Sketcher.Constraint("DistanceY", -1, 1, 7, 2, 7.933261),
    Sketcher.Constraint("DistanceX", -1, 1, 9, 2, 32.95843),
    Sketcher.Constraint("DistanceX", -1, 1, 10, 2, 44.988379),
])
pocket13 = body.newObject("PartDesign::Pocket", "Pocket012")
pocket13.Profile = sketch24
pocket13.Length = 10
pocket13.Reversed = True

# Sketch on XY plane
sketch25 = body.newObject("Sketcher::SketchObject", "Sketch024")
sketch25.AttachmentSupport = (doc.getObject("XY_Plane"), [""])
sketch25.MapMode = "FlatFace"
sketch25.AttachmentOffset = App.Placement(App.Vector(0, 0, 12), App.Rotation())
sketch25.addGeometry([
    Part.Circle(App.Vector(27.5, 0, 0), App.Vector(0, 0, 1), 0.6),
    Part.Circle(App.Vector(-27.5, 0, 0), App.Vector(0, 0, 1), 0.6),
], False)
sketch25.addConstraint([
    Sketcher.Constraint("Equal", 0, 1),
    Sketcher.Constraint("Symmetric", 0, 3, 1, 3, -1, 1),
    Sketcher.Constraint("PointOnObject", 0, 3, -1),
    Sketcher.Constraint("Diameter", 0, 1.2),
    Sketcher.Constraint("DistanceX", 1, 3, 0, 3, 55.0),
])
pocket14 = body.newObject("PartDesign::Pocket", "Pocket013")
pocket14.Profile = sketch25
pocket14.Type = "ThroughAll"

# Sketch on XY plane
sketch26 = body.newObject("Sketcher::SketchObject", "Sketch025")
sketch26.AttachmentSupport = (doc.getObject("XY_Plane"), [""])
sketch26.MapMode = "FlatFace"
sketch26.AttachmentOffset = App.Placement(App.Vector(0, 0, 4), App.Rotation())
sketch26.addGeometry([
    Part.Circle(App.Vector(-32.5, 5, 0), App.Vector(0, 0, 1), 7.8),
    Part.Circle(App.Vector(-32.5, 5, 0), App.Vector(0, 0, 1), 4.8),
    Part.Circle(App.Vector(32.5, 5, 0), App.Vector(0, 0, 1), 7.8),
    Part.Circle(App.Vector(32.5, 5, 0), App.Vector(0, 0, 1), 4.8),
], False)
sketch26.addConstraint([
    Sketcher.Constraint("Coincident", 1, 3, 0, 3),
    Sketcher.Constraint("Coincident", 3, 3, 2, 3),
    Sketcher.Constraint("Equal", 0, 2),
    Sketcher.Constraint("Equal", 1, 3),
    Sketcher.Constraint("Symmetric", 0, 3, 2, 3, -2),
    Sketcher.Constraint("Diameter", 0, 15.5),
    Sketcher.Constraint("Diameter", 1, 9.5),
    Sketcher.Constraint("DistanceY", -1, 1, 0, 3, 5.0),
    Sketcher.Constraint("DistanceX", 0, 3, 2, 3, 65.0),
])
pad8 = body.newObject("PartDesign::Pad", "Pad007")
pad8.Profile = sketch26
pad8.Length = 8

# Sketch on XY plane
sketch27 = body.newObject("Sketcher::SketchObject", "Sketch026")
sketch27.AttachmentSupport = (doc.getObject("XY_Plane"), [""])
sketch27.MapMode = "FlatFace"
sketch27.AttachmentOffset = App.Placement(App.Vector(0, 0, 12), App.Rotation())
sketch27.addGeometry([
    Part.Circle(App.Vector(-15, 0, 0), App.Vector(0, 0, 1), 1),
    Part.Circle(App.Vector(15, 0, 0), App.Vector(0, 0, 1), 1),
], False)
sketch27.addConstraint([
    Sketcher.Constraint("Equal", 0, 1),
    Sketcher.Constraint("Symmetric", 0, 3, 1, 3, -1, 1),
    Sketcher.Constraint("PointOnObject", 0, 3, -1),
    Sketcher.Constraint("Diameter", 0, 2.0),
    Sketcher.Constraint("DistanceX", 0, 3, -1, 1, 15.0),
])
pad9 = body.newObject("PartDesign::Pad", "Pad008")
pad9.Profile = sketch27
pad9.Length = 2
pad9.Reversed = True

# Sketch on XY plane
sketch28 = body.newObject("Sketcher::SketchObject", "Sketch027")
sketch28.AttachmentSupport = (doc.getObject("XY_Plane"), [""])
sketch28.MapMode = "FlatFace"
sketch28.AttachmentOffset = App.Placement(App.Vector(0, 0, 4), App.Rotation())
add_polygon(sketch28, [(18.8, -2.5), (16.2, 4.5), (21, 4.5), (27, 10.5)])  # lines 0-3
add_polygon(sketch28, [(-18.8, -2.5), (-27, 10.5), (-21, 4.5), (-16.2, 4.5)])  # lines 4-7
sketch28.addConstraint([
    Sketcher.Constraint("Horizontal", 1),
    Sketcher.Constraint("Horizontal", 6),
    Sketcher.Constraint("Symmetric", 2, 2, 4, 2, -2),
    Sketcher.Constraint("Symmetric", 1, 2, 5, 2, -2),
    Sketcher.Constraint("Symmetric", 3, 2, 7, 2, -2),
    Sketcher.Constraint("Equal", 1, 6),
    Sketcher.Constraint("DistanceX", -1, 1, 1, 2, 21.0),
    Sketcher.Constraint("DistanceY", 3, 2, 1, 2, 7.0),
    Sketcher.Constraint("DistanceX", 6, 2, 3, 2, 35.0),
    Sketcher.Constraint("DistanceX", 1, 1, 1, 2, 4.75),
    Sketcher.Constraint("DistanceY", -1, 1, 0, 2, 4.5),
    Sketcher.Constraint("Distance", 3, 15.41579),
    Sketcher.Constraint("DistanceX", -1, 1, 2, 2, 27.038121),
])
pad10 = body.newObject("PartDesign::Pad", "Pad009")
pad10.Profile = sketch28
pad10.Length = 8
doc.recompute()

fillet = body.newObject("PartDesign::Fillet", "Fillet")
fillet.Base = (pad10, edges_at(pad10, [(21, 4.5, 8), (-21, 4.5, 8)]))
fillet.Radius = 4.5

# Sketch on XY plane
sketch29 = body.newObject("Sketcher::SketchObject", "Sketch028")
sketch29.AttachmentSupport = (doc.getObject("XY_Plane"), [""])
sketch29.MapMode = "FlatFace"
sketch29.AttachmentOffset = App.Placement(App.Vector(0, 0, 12), App.Rotation())
sketch29.addGeometry([
    Part.Circle(App.Vector(-27.5, 0, 0), App.Vector(0, 0, 1), 0.6),
    Part.Circle(App.Vector(27.5, 0, 0), App.Vector(0, 0, 1), 0.6),
], False)
sketch29.addConstraint([
    Sketcher.Constraint("Equal", 0, 1),
    Sketcher.Constraint("Symmetric", 0, 3, 1, 3, -1, 1),
    Sketcher.Constraint("Diameter", 0, 1.25),
    Sketcher.Constraint("DistanceX", 0, 3, 1, 3, 54.999999),
    Sketcher.Constraint("DistanceY", -1, 1, 0, 3, 0.00437),
])
doc.recompute()
hole5 = body.newObject("PartDesign::Hole", "Hole004")
hole5.Profile = sketch29
hole5.ThreadType = "None"
hole5.Diameter = 1.25
hole5.DepthType = "Dimension"
hole5.Depth = 24
hole5.DrillPoint = "Angled"
hole5.DrillPointAngle = 118

# Sketch on XY plane
sketch30 = body.newObject("Sketcher::SketchObject", "Sketch029")
sketch30.AttachmentSupport = (doc.getObject("XY_Plane"), [""])
sketch30.MapMode = "FlatFace"
sketch30.AttachmentOffset = App.Placement(App.Vector(0, 0, 4), App.Rotation())
add_polygon(sketch30, [(-39.2, 5), (-39.2, -5), (-40.2, -5), (-40.2, 5)])  # lines 0-3
add_polygon(sketch30, [(40.2, 5), (40.2, -5), (39.2, -5), (39.2, 5)])  # lines 4-7
sketch30.addConstraint([
    Sketcher.Constraint("Vertical", 0),
    Sketcher.Constraint("Horizontal", 1),
    Sketcher.Constraint("Vertical", 2),
    Sketcher.Constraint("Horizontal", 3),
    Sketcher.Constraint("Vertical", 4),
    Sketcher.Constraint("Horizontal", 5),
    Sketcher.Constraint("Vertical", 6),
    Sketcher.Constraint("Horizontal", 7),
    Sketcher.Constraint("Symmetric", 2, 2, 4, 2, -1, 1),
    Sketcher.Constraint("Symmetric", 0, 2, 6, 2, -1, 1),
    Sketcher.Constraint("Horizontal", 1, 2, 4, 2),
    Sketcher.Constraint("DistanceX", 1, 2, 1, 1, 1.0),
    Sketcher.Constraint("DistanceY", 0, 2, 0, 1, 10.0),
    Sketcher.Constraint("DistanceX", 0, 2, 4, 2, 79.5),
])
pad11 = body.newObject("PartDesign::Pad", "Pad010")
pad11.Profile = sketch30
pad11.Length = 8
doc.recompute()

fillet2 = body.newObject("PartDesign::Fillet", "Fillet001")
fillet2.Base = (pad11, edges_at(pad11, [(-40.25, -5, 8), (40.25, -5, 8)]))
fillet2.Radius = 7

# Sketch on XY plane
sketch31 = body.newObject("Sketcher::SketchObject", "Sketch030")
sketch31.AttachmentSupport = (doc.getObject("XY_Plane"), [""])
sketch31.MapMode = "FlatFace"
sketch31.AttachmentOffset = App.Placement(App.Vector(0, 0, 4), App.Rotation())
sketch31.addGeometry([
    Part.Circle(App.Vector(25.1, 7.3, 0), App.Vector(0, 0, 1), 0.6),
    Part.Circle(App.Vector(-25.1, 7.3, 0), App.Vector(0, 0, 1), 0.6),
], False)
sketch31.addConstraint([
    Sketcher.Constraint("Equal", 0, 1),
    Sketcher.Constraint("Symmetric", 0, 3, 1, 3, -2),
    Sketcher.Constraint("Diameter", 0, 1.164886),
    Sketcher.Constraint("DistanceX", 1, 3, 0, 3, 50.221191),
    Sketcher.Constraint("DistanceY", -1, 1, 0, 3, 7.336493),
])
pad12 = body.newObject("PartDesign::Pad", "Pad011")
pad12.Profile = sketch31
pad12.Length = 8

doc.recompute()
